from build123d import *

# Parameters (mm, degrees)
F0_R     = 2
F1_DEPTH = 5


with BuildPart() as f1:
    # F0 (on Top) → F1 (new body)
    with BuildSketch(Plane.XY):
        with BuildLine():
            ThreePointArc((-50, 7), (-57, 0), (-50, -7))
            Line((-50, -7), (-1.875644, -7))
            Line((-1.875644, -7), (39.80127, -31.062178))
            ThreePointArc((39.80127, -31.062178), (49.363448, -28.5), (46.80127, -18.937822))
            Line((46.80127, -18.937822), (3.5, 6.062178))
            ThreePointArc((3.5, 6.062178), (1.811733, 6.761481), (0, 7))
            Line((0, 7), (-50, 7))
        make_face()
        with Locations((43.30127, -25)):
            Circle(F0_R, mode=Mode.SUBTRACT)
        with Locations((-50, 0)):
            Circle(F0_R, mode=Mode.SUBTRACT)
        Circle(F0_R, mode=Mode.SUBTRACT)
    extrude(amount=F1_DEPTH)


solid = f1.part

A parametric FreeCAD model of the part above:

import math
import FreeCAD as App
import Part
import Sketcher
from FreeCAD import Vector
Q = App.Units.Quantity

doc = App.newDocument("Part")
body = doc.addObject("PartDesign::Body", "Body")

sketch1 = doc.addObject("Sketcher::SketchObject", "Sketch")
body.addObject(sketch1)
sketch1.AttachmentSupport = (doc.XY_Plane, [""])
sketch1.MapMode = "FlatFace"
sketch1.addGeometry([
    Part.ArcOfCircle(Part.Circle(Vector(-50, 0, 0), Vector(0, 0, 1), 7), math.radians(90), math.radians(270)),
    Part.LineSegment(Vector(-50, -7, 0), Vector(-1.9, -7, 0)),
    Part.LineSegment(Vector(-1.9, -7, 0), Vector(39.8, -31.1, 0)),
    Part.ArcOfCircle(Part.Circle(Vector(43.3, -25, 0), Vector(0, 0, 1), 7), math.radians(-120), math.radians(60)),
    Part.LineSegment(Vector(46.8, -18.9, 0), Vector(3.5, 6.1, 0)),
    Part.ArcOfCircle(Part.Circle(Vector(0, 0, 0), Vector(0, 0, 1), 7), math.radians(60), math.radians(90)),
    Part.LineSegment(Vector(0, 7, 0), Vector(-50, 7, 0)),
    Part.Circle(Vector(43.3, -25, 0), Vector(0, 0, 1), 2),
    Part.Circle(Vector(-50, 0, 0), Vector(0, 0, 1), 2),
    Part.Circle(Vector(0, 0, 0), Vector(0, 0, 1), 2),
], False)
sketch1.addConstraint([
    Sketcher.Constraint("Tangent", 0, 2, 1, 1),
    Sketcher.Constraint("Coincident", 1, 2, 2, 1),
    Sketcher.Constraint("Tangent", 2, 2, 3, 1),
    Sketcher.Constraint("Tangent", 3, 2, 4, 1),
    Sketcher.Constraint("Tangent", 4, 2, 5, 1),
    Sketcher.Constraint("Tangent", 5, 2, 6, 1),
    Sketcher.Constraint("Tangent", 6, 2, 0, 1),
    Sketcher.Constraint("Horizontal", 1),
    Sketcher.Constraint("Horizontal", 6),
    Sketcher.Constraint("Coincident", 5, 3, -1, 1),
    Sketcher.Constraint("Coincident", 9, 3, -1, 1),
    Sketcher.Constraint("Coincident", 7, 3, 3, 3),
    Sketcher.Constraint("Coincident", 8, 3, 0, 3),
    Sketcher.Constraint("Equal", 0, 3),
    Sketcher.Constraint("Equal", 3, 5),
    Sketcher.Constraint("Equal", 7, 8),
    Sketcher.Constraint("Equal", 8, 9),
    Sketcher.Constraint("Parallel", 2, 4),
    Sketcher.Constraint("Diameter", 7, 4.0),
    Sketcher.Constraint("Radius", 0, 7.0),
    Sketcher.Constraint("DistanceX", 6, 2, 6, 1, 50.0),
    Sketcher.Constraint("Angle", 2, Q("-30 deg")),
    Sketcher.Constraint("Distance", 4, 50.0),
])
pad1 = doc.addObject("PartDesign::Pad", "Pad")
body.addObject(pad1)
pad1.Profile = sketch1
pad1.Length = 5

doc.recompute()
